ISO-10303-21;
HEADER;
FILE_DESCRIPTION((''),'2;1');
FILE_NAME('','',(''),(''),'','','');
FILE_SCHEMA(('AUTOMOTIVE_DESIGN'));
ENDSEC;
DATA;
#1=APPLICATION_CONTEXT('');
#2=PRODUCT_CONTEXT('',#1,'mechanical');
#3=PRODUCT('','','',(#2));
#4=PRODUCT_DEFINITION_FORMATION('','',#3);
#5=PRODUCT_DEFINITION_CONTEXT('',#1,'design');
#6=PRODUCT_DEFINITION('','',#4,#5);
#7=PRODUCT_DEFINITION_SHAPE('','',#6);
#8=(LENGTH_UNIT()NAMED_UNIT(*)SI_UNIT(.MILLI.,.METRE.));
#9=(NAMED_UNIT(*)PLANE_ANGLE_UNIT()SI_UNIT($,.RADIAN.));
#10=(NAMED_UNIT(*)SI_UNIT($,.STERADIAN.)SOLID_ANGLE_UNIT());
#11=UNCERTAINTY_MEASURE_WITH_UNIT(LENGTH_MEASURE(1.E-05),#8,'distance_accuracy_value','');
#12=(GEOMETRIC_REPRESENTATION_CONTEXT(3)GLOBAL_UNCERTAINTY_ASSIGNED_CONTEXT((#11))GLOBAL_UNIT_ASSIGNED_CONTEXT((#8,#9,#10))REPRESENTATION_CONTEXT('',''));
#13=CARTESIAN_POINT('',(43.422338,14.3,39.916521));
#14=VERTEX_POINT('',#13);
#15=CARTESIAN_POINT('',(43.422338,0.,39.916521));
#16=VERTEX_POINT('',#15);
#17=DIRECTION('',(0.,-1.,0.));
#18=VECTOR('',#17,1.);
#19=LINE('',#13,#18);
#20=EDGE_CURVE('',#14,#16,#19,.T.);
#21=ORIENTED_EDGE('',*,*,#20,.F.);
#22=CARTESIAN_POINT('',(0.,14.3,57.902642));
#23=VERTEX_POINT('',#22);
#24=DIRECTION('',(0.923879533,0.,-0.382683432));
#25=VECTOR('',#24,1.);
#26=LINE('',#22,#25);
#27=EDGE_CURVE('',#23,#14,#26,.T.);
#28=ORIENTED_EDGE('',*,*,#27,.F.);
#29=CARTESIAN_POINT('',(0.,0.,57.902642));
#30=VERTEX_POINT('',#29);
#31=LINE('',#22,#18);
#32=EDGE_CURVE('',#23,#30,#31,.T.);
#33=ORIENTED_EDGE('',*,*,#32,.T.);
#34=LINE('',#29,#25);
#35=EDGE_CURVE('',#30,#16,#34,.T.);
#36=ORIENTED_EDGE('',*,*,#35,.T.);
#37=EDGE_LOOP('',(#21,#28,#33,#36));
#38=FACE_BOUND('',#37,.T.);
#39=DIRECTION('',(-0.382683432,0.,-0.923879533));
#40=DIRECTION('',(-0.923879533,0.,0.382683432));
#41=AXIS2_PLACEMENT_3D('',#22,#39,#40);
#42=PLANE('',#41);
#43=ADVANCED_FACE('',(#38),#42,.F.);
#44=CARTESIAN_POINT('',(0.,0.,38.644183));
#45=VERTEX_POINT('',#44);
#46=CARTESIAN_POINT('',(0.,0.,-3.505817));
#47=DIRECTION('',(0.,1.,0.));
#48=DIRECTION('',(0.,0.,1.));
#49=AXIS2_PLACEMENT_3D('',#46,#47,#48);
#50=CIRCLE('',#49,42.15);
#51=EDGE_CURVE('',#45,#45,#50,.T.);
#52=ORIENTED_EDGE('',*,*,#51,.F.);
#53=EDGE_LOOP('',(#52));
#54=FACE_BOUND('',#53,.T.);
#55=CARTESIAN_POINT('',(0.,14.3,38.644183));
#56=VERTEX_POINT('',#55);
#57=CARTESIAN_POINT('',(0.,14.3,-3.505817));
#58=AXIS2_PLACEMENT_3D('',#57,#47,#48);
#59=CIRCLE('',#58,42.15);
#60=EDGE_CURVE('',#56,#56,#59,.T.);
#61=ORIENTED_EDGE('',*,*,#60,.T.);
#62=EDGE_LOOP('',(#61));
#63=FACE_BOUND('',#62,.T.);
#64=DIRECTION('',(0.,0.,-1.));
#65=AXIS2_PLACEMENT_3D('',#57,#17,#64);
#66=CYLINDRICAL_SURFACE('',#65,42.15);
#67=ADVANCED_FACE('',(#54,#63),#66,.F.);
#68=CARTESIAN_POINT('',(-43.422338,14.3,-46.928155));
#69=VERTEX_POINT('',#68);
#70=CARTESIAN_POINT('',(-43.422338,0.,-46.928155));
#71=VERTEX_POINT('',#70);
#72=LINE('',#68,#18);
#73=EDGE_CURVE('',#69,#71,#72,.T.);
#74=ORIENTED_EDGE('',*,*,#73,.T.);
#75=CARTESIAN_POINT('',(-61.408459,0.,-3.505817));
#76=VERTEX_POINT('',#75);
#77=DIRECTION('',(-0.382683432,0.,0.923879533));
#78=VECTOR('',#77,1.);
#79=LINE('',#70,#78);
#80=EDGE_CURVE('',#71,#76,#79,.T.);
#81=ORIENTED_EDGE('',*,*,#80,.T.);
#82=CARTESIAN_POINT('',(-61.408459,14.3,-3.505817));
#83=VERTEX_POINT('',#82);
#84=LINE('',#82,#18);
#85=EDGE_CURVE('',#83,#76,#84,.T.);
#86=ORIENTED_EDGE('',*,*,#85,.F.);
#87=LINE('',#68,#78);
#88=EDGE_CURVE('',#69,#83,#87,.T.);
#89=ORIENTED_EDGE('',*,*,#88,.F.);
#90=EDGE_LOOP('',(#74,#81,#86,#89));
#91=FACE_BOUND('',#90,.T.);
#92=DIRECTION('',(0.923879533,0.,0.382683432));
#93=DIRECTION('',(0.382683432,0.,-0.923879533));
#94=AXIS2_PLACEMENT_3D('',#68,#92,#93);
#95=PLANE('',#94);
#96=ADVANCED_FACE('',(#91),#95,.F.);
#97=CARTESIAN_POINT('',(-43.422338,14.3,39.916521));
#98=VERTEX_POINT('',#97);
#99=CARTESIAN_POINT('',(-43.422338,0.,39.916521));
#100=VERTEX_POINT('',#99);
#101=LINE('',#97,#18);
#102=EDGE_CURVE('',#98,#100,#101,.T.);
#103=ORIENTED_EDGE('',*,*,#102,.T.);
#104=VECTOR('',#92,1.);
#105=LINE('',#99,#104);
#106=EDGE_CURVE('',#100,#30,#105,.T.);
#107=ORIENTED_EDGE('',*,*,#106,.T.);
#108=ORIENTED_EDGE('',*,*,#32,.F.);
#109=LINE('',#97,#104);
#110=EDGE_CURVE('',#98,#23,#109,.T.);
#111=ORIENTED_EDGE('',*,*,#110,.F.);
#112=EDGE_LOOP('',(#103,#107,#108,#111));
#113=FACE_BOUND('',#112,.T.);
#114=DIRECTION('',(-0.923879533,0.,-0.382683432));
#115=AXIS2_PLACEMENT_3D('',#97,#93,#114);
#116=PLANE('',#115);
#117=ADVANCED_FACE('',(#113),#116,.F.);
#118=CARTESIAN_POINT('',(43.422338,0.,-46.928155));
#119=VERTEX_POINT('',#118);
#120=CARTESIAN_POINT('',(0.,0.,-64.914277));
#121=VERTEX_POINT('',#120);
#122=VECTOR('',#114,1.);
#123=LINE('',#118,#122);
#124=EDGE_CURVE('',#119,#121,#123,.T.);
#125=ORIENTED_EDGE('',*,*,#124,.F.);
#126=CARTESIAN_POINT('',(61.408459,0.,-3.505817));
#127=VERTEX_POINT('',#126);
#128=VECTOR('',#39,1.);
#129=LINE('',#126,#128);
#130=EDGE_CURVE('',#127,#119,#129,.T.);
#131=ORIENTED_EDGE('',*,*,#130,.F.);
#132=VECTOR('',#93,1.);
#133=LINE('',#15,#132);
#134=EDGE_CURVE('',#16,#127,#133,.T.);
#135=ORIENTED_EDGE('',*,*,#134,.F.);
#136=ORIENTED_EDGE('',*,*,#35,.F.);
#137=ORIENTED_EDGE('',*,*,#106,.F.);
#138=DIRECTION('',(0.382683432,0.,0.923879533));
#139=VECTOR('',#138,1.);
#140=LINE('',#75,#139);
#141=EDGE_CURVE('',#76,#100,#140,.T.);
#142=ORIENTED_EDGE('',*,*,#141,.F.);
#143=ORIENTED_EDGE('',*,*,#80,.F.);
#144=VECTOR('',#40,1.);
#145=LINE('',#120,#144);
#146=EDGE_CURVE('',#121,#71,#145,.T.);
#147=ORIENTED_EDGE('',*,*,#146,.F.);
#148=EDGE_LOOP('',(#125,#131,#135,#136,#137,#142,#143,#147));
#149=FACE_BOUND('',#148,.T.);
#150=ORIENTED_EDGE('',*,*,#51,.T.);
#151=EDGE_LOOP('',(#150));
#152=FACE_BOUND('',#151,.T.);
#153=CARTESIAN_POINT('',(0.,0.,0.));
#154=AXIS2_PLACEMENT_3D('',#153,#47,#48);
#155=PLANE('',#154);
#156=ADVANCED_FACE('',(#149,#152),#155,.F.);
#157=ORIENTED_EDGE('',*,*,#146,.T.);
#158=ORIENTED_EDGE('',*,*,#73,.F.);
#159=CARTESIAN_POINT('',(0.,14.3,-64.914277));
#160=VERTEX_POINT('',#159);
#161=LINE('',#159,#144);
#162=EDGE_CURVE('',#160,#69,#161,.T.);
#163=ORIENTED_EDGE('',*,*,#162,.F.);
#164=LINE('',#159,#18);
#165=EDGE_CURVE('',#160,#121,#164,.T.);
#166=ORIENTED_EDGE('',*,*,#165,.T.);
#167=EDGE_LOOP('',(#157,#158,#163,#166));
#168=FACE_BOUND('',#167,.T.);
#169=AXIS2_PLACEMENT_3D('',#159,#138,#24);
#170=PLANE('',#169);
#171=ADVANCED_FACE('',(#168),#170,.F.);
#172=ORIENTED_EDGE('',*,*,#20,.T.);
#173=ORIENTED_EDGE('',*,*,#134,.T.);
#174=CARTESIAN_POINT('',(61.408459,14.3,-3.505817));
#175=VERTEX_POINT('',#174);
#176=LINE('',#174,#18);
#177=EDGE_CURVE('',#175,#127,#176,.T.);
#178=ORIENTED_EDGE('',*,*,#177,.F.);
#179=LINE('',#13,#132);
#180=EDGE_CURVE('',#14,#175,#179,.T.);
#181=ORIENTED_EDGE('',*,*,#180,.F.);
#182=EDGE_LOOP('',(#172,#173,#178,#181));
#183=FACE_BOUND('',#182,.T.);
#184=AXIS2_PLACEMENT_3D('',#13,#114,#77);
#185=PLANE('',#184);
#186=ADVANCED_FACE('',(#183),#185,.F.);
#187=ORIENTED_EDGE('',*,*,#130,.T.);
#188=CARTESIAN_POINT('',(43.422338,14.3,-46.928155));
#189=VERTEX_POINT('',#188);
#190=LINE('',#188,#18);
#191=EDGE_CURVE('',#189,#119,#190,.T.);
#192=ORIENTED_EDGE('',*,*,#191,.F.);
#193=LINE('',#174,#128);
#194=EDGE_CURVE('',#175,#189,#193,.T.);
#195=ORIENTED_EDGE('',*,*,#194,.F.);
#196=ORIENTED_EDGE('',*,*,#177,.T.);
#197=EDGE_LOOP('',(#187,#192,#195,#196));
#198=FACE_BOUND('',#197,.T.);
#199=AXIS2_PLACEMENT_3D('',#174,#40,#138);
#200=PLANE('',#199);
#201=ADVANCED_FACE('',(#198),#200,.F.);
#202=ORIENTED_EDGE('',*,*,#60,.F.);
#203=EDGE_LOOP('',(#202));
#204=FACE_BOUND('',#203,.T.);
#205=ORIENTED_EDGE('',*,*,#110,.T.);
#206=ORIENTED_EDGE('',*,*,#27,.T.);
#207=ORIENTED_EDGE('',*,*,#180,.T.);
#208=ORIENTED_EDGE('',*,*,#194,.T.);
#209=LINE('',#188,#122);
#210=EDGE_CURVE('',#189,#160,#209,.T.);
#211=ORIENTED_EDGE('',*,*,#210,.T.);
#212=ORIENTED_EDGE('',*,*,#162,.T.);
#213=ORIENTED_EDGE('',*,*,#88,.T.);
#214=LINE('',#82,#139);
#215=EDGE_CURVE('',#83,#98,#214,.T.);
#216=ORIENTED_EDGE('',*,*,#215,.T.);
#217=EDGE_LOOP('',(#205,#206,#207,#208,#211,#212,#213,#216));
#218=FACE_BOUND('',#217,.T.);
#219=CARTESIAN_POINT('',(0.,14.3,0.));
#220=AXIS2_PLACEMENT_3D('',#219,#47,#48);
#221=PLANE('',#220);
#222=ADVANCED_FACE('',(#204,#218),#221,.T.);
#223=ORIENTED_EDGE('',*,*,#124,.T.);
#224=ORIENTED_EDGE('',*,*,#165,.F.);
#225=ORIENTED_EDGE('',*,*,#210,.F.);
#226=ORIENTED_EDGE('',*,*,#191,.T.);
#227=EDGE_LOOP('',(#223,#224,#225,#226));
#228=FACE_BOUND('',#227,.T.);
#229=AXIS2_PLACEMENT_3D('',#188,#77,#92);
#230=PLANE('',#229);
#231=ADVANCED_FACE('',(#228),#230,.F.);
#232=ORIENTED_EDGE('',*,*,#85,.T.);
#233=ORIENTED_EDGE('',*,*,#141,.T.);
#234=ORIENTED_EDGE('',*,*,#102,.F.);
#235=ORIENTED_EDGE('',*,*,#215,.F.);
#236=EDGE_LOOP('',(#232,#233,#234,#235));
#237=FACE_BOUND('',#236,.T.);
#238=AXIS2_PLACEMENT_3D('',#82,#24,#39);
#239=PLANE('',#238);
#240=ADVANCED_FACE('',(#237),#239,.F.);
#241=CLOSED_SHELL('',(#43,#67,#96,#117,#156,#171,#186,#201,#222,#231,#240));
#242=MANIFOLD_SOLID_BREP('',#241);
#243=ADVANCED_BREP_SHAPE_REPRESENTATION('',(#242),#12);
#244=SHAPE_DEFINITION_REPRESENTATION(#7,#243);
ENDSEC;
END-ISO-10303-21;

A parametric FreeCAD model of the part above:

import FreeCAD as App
import Part
import Sketcher
Q = App.Units.Quantity

doc = App.newDocument("Part")
params = doc.addObject("Spreadsheet::Sheet", "Params")
for row, (alias, value) in enumerate([
    ("sketch1_diameter", "84.3 mm"),
    ("sketch1_length", "47 mm"),
    ("pad1_length", "14.3 mm"),
], start=1):
    params.set(f"A{row}", alias)
    params.set(f"B{row}", "=" + value)
    params.setAlias(f"B{row}", alias)

body = doc.addObject("PartDesign::Body", "Body")

sketch1 = body.newObject("Sketcher::SketchObject", "Sketch")
sketch1.AttachmentSupport = (doc.getObject("XZ_Plane"), [""])
sketch1.MapMode = "FlatFace"
sketch1.addGeometry([
    Part.LineSegment(App.Vector(0, 58, 0), App.Vector(43, 40, 0)),
    Part.LineSegment(App.Vector(43, 40, 0), App.Vector(61, -4, 0)),
    Part.LineSegment(App.Vector(61, -4, 0), App.Vector(43, -47, 0)),
    Part.LineSegment(App.Vector(43, -47, 0), App.Vector(0, -65, 0)),
    Part.LineSegment(App.Vector(0, -65, 0), App.Vector(-43, -47, 0)),
    Part.LineSegment(App.Vector(-43, -47, 0), App.Vector(-61, -4, 0)),
    Part.LineSegment(App.Vector(-61, -4, 0), App.Vector(-43, 40, 0)),
    Part.LineSegment(App.Vector(-43, 40, 0), App.Vector(0, 58, 0)),
    Part.Circle(App.Vector(0, -4, 0), App.Vector(0, 0, 1), 42),
], False)
sketch1.addConstraint([
    Sketcher.Constraint("Coincident", 0, 2, 1, 1),
    Sketcher.Constraint("Coincident", 1, 2, 2, 1),
    Sketcher.Constraint("Coincident", 2, 2, 3, 1),
    Sketcher.Constraint("Coincident", 3, 2, 4, 1),
    Sketcher.Constraint("Coincident", 4, 2, 5, 1),
    Sketcher.Constraint("Coincident", 5, 2, 6, 1),
    Sketcher.Constraint("Coincident", 6, 2, 7, 1),
    Sketcher.Constraint("Coincident", 7, 2, 0, 1),
    Sketcher.Constraint("Symmetric", 2, 2, 4, 2, -2),
    Sketcher.Constraint("Symmetric", 1, 2, 5, 2, -2),
    Sketcher.Constraint("Symmetric", 0, 2, 6, 2, -2),
    Sketcher.Constraint("PointOnObject", 8, 3, -2),
    Sketcher.Constraint("PointOnObject", 3, 2, -2),
    Sketcher.Constraint("PointOnObject", 7, 2, -2),
    Sketcher.Constraint("Perpendicular", 0, 2),
    Sketcher.Constraint("Perpendicular", 1, 3),
    Sketcher.Constraint("Perpendicular", 2, 4),
    Sketcher.Constraint("Horizontal", 8, 3, 1, 2),
    Sketcher.Constraint("Vertical", 0, 2, 2, 2),
    Sketcher.Constraint("Equal", 0, 1),
    Sketcher.Constraint("Diameter", 8, Q("84.3 mm")),
    Sketcher.Constraint("Distance", 0, Q("47 mm")),
    Sketcher.Constraint("Angle", 0, Q("-22.5 deg")),
    Sketcher.Constraint("DistanceY", -1, 1, 0, 2, Q("39.916521 mm")),
])
sketch1.setExpression("Constraints[20]", "Params.sketch1_diameter")
sketch1.setExpression("Constraints[21]", "Params.sketch1_length")
pad1 = body.newObject("PartDesign::Pad", "Pad")
pad1.Profile = sketch1
pad1.setExpression("Length", "Params.pad1_length")
pad1.Reversed = True

doc.recompute()
